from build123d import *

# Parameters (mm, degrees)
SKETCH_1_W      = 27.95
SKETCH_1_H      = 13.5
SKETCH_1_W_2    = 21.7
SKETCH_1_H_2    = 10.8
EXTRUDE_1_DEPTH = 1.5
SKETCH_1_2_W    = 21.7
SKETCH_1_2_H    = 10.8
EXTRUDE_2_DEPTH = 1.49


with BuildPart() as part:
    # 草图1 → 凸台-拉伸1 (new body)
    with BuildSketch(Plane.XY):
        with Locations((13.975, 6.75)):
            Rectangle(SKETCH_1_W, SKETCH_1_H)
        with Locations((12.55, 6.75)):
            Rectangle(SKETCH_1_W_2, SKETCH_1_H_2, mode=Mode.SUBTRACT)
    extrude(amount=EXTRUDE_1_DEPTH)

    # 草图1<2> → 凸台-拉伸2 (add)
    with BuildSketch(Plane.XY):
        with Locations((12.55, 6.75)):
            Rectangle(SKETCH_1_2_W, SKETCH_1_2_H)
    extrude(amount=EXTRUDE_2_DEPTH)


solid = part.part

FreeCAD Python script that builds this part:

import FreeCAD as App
import Part
import Sketcher
Q = App.Units.Quantity


def add_polygon(sketch, points):
    """Adds a closed chain of lines whose ends are joined by coincident constraints."""
    first, n = sketch.GeometryCount, len(points)
    for a, b in zip(points, points[1:] + points[:1]):
        sketch.addGeometry(Part.LineSegment(App.Vector(*a, 0), App.Vector(*b, 0)), False)
    for i in range(n):
        sketch.addConstraint(Sketcher.Constraint("Coincident", first + i, 2, first + (i + 1) % n, 1))

doc = App.newDocument("Part")
params = doc.addObject("Spreadsheet::Sheet", "Params")
for row, (alias, value) in enumerate([
    ("sketch1_width", "21.7 mm"),
    ("sketch1_height", "13.5 mm"),
    ("sketch1_height2", "10.8 mm"),
    ("sketch1_width2", "27.95 mm"),
    ("pad1_length", "1.5 mm"),
    ("sketch2_width", "21.7 mm"),
    ("sketch2_height", "10.8 mm"),
    ("pad2_length", "1.49 mm"),
], start=1):
    params.set(f"A{row}", alias)
    params.set(f"B{row}", "=" + value)
    params.setAlias(f"B{row}", alias)

body = doc.addObject("PartDesign::Body", "Body")

sketch1 = doc.addObject("Sketcher::SketchObject", "Sketch")
body.addObject(sketch1)
sketch1.AttachmentSupport = (doc.XY_Plane, [""])
sketch1.MapMode = "FlatFace"
add_polygon(sketch1, [(0, 14), (0, 0), (28, 0), (28, 14)])
add_polygon(sketch1, [(23, 1), (2, 1), (2, 12), (23, 12)])
sketch1.addConstraint(Sketcher.Constraint("Vertical", 0))
sketch1.addConstraint(Sketcher.Constraint("Horizontal", 1))
sketch1.addConstraint(Sketcher.Constraint("Vertical", 2))
sketch1.addConstraint(Sketcher.Constraint("Horizontal", 3))
sketch1.addConstraint(Sketcher.Constraint("Horizontal", 4))
sketch1.addConstraint(Sketcher.Constraint("Vertical", 5))
sketch1.addConstraint(Sketcher.Constraint("Horizontal", 6))
sketch1.addConstraint(Sketcher.Constraint("Vertical", 7))
sketch1.addConstraint(Sketcher.Constraint("Coincident", 0, 2, -1, 1))
sketch1.addConstraint(Sketcher.Constraint("DistanceX", 4, 2, 4, 1, Q("21.7 mm")))
sketch1.addConstraint(Sketcher.Constraint("DistanceY", 0, 2, 0, 1, Q("13.5 mm")))
sketch1.addConstraint(Sketcher.Constraint("DistanceY", 5, 1, 5, 2, Q("10.8 mm")))
sketch1.addConstraint(Sketcher.Constraint("DistanceX", 1, 1, 1, 2, Q("27.95 mm")))
sketch1.addConstraint(Sketcher.Constraint("DistanceX", -1, 1, 4, 2, Q("1.7 mm")))
sketch1.addConstraint(Sketcher.Constraint("DistanceY", -1, 1, 4, 2, Q("1.35 mm")))
sketch1.setExpression("Constraints[17]", "Params.sketch1_width")
sketch1.setExpression("Constraints[18]", "Params.sketch1_height")
sketch1.setExpression("Constraints[19]", "Params.sketch1_height2")
sketch1.setExpression("Constraints[20]", "Params.sketch1_width2")
pad1 = doc.addObject("PartDesign::Pad", "Pad")
body.addObject(pad1)
pad1.Profile = sketch1
pad1.setExpression("Length", "Params.pad1_length")

sketch2 = doc.addObject("Sketcher::SketchObject", "Sketch001")
body.addObject(sketch2)
sketch2.AttachmentSupport = (doc.XY_Plane, [""])
sketch2.MapMode = "FlatFace"
add_polygon(sketch2, [(2, 12), (2, 1), (23, 1), (23, 12)])
sketch2.addConstraint(Sketcher.Constraint("Vertical", 0))
sketch2.addConstraint(Sketcher.Constraint("Horizontal", 1))
sketch2.addConstraint(Sketcher.Constraint("Vertical", 2))
sketch2.addConstraint(Sketcher.Constraint("Horizontal", 3))
sketch2.addConstraint(Sketcher.Constraint("DistanceX", 1, 1, 1, 2, Q("21.7 mm")))
sketch2.addConstraint(Sketcher.Constraint("DistanceY", 0, 2, 0, 1, Q("10.8 mm")))
sketch2.addConstraint(Sketcher.Constraint("DistanceX", -1, 1, 0, 2, Q("1.7 mm")))
sketch2.addConstraint(Sketcher.Constraint("DistanceY", -1, 1, 0, 2, Q("1.35 mm")))
sketch2.setExpression("Constraints[8]", "Params.sketch2_width")
sketch2.setExpression("Constraints[9]", "Params.sketch2_height")
pad2 = doc.addObject("PartDesign::Pad", "Pad001")
body.addObject(pad2)
pad2.Profile = sketch2
pad2.setExpression("Length", "Params.pad2_length")

doc.recompute()
